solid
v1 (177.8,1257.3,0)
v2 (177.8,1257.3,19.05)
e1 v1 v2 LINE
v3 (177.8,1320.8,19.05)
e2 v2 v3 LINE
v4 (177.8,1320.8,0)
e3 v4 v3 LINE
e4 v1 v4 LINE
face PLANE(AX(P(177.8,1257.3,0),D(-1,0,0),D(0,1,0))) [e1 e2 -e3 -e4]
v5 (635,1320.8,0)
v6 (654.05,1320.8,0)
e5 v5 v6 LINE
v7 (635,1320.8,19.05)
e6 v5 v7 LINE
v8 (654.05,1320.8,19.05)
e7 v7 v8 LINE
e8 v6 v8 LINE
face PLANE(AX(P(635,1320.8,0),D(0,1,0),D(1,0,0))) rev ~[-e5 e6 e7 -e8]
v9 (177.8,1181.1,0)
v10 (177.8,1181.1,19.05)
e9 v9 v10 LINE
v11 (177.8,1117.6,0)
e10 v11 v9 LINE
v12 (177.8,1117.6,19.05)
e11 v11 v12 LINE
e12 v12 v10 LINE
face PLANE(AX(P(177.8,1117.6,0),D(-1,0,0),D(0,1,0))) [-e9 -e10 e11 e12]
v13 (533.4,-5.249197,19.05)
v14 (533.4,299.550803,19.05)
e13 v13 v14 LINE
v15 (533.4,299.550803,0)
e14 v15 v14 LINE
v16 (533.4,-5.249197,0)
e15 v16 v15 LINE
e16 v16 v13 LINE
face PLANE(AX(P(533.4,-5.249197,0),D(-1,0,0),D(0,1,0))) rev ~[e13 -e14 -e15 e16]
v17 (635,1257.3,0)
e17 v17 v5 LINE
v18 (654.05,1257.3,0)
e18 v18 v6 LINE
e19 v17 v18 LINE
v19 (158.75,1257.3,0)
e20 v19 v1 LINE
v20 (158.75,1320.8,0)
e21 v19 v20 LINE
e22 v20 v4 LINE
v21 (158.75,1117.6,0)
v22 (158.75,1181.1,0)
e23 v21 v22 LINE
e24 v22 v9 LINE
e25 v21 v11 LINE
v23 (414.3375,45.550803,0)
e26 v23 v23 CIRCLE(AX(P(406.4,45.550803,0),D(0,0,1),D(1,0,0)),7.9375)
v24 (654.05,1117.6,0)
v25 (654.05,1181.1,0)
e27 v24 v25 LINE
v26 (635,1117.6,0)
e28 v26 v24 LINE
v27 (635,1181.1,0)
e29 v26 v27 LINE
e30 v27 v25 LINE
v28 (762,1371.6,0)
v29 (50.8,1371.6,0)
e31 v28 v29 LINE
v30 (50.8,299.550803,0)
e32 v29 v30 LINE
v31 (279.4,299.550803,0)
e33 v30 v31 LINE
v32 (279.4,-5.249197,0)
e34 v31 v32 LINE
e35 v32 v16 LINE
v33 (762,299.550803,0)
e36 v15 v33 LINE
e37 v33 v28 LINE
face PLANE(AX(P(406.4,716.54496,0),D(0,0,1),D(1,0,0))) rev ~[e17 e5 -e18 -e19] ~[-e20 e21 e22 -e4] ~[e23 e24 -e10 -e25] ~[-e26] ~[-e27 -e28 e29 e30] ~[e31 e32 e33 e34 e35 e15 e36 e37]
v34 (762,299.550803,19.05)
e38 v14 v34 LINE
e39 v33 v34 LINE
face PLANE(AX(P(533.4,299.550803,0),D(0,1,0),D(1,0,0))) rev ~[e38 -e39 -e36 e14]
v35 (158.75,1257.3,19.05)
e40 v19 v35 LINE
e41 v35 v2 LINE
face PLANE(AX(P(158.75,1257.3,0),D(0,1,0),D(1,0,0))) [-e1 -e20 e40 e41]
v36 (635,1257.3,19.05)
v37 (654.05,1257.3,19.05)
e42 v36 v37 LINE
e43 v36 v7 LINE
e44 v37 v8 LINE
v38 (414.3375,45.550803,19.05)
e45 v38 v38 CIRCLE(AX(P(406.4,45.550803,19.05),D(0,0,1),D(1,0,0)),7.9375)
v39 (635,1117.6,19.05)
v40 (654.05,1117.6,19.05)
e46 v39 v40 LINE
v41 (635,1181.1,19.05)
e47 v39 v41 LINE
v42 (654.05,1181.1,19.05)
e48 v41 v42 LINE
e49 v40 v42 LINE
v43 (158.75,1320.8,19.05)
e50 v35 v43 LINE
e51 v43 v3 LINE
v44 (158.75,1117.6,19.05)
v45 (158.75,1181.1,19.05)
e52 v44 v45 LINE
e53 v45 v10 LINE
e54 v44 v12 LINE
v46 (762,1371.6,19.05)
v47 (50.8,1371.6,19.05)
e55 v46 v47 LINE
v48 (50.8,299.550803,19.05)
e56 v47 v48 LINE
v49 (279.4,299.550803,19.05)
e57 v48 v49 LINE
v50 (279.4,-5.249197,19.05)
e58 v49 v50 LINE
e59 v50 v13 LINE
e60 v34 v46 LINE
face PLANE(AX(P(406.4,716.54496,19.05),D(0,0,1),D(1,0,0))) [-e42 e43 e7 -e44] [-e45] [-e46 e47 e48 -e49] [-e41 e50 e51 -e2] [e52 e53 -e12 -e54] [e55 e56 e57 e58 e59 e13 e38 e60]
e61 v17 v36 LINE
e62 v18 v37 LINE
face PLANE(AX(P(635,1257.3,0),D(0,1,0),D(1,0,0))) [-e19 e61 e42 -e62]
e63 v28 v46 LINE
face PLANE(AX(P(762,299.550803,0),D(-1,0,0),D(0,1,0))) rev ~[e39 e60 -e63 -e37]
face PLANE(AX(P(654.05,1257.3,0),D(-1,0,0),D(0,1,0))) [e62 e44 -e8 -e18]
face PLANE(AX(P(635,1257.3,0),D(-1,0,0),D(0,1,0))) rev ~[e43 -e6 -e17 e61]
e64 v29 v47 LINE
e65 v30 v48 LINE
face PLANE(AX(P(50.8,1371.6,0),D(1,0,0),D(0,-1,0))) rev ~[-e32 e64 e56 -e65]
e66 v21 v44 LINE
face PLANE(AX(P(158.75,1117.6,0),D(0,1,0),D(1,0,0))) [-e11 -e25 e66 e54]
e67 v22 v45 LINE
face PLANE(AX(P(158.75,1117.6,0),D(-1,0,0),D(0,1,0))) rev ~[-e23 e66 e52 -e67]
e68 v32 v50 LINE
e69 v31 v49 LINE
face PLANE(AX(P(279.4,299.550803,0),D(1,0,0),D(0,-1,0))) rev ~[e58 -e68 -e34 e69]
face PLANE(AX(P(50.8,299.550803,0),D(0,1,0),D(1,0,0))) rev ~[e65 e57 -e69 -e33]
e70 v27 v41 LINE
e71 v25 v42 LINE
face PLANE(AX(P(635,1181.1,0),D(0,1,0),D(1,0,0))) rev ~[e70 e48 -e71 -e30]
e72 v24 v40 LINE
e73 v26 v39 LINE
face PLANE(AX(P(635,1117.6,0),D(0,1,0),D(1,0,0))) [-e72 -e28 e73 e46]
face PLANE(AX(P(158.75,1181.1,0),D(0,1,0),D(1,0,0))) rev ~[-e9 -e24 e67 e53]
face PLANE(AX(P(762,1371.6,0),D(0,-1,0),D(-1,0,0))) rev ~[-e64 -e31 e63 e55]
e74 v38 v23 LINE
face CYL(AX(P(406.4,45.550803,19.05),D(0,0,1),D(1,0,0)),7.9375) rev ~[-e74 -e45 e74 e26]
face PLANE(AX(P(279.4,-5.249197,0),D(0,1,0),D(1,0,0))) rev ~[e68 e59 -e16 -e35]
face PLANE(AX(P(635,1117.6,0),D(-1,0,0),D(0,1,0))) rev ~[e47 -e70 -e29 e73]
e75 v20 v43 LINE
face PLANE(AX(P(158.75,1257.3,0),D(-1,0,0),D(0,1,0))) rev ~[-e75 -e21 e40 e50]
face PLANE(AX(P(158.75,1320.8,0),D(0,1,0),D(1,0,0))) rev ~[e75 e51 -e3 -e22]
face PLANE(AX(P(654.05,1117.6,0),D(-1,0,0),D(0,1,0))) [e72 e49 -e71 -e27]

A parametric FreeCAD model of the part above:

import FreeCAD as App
import Part
import Sketcher

V = App.Vector
Q = App.Units.Quantity


def add_polygon(sketch, points):
    """Adds a closed chain of lines whose ends are joined by coincident constraints."""
    first, n = sketch.GeometryCount, len(points)
    for a, b in zip(points, points[1:] + points[:1]):
        sketch.addGeometry(Part.LineSegment(App.Vector(*a, 0), App.Vector(*b, 0)), False)
    for i in range(n):
        sketch.addConstraint(Sketcher.Constraint("Coincident", first + i, 2, first + (i + 1) % n, 1))

doc = App.newDocument("Part")
body = doc.addObject("PartDesign::Body", "Body")

sketch1 = doc.addObject("Sketcher::SketchObject", "Sketch")
body.addObject(sketch1)
sketch1.AttachmentSupport = (doc.XY_Plane, [""])
sketch1.MapMode = "FlatFace"
add_polygon(sketch1, [(762, 1372), (51, 1372), (51, 300), (279, 300), (279, -5), (533, -5), (533, 300), (762, 300)])
add_polygon(sketch1, [(178, 1118), (159, 1118), (159, 1181), (178, 1181)])
add_polygon(sketch1, [(654, 1118), (635, 1118), (635, 1181), (654, 1181)])
add_polygon(sketch1, [(178, 1257), (159, 1257), (159, 1321), (178, 1321)])
add_polygon(sketch1, [(654, 1257), (635, 1257), (635, 1321), (654, 1321)])
sketch1.addConstraint([
    Sketcher.Constraint("Horizontal", 0),
    Sketcher.Constraint("Vertical", 1),
    Sketcher.Constraint("Horizontal", 2),
    Sketcher.Constraint("Vertical", 3),
    Sketcher.Constraint("Horizontal", 4),
    Sketcher.Constraint("Vertical", 5),
    Sketcher.Constraint("Horizontal", 6),
    Sketcher.Constraint("Vertical", 7),
    Sketcher.Constraint("Horizontal", 8),
    Sketcher.Constraint("Vertical", 9),
    Sketcher.Constraint("Horizontal", 10),
    Sketcher.Constraint("Vertical", 11),
    Sketcher.Constraint("Horizontal", 12),
    Sketcher.Constraint("Vertical", 13),
    Sketcher.Constraint("Horizontal", 14),
    Sketcher.Constraint("Vertical", 15),
    Sketcher.Constraint("Horizontal", 16),
    Sketcher.Constraint("Vertical", 17),
    Sketcher.Constraint("Horizontal", 18),
    Sketcher.Constraint("Vertical", 19),
    Sketcher.Constraint("Horizontal", 20),
    Sketcher.Constraint("Vertical", 21),
    Sketcher.Constraint("Horizontal", 22),
    Sketcher.Constraint("Vertical", 23),
    Sketcher.Constraint("Horizontal", 2, 2, 5, 2),
    Sketcher.Constraint("Horizontal", 11, 2, 12, 2),
    Sketcher.Constraint("Horizontal", 10, 2, 13, 2),
    Sketcher.Constraint("Horizontal", 19, 2, 20, 2),
    Sketcher.Constraint("Horizontal", 18, 2, 21, 2),
    Sketcher.Constraint("Vertical", 9, 2, 16, 2),
    Sketcher.Constraint("Vertical", 11, 2, 18, 2),
    Sketcher.Constraint("Vertical", 13, 2, 20, 2),
    Sketcher.Constraint("Vertical", 15, 2, 22, 2),
    Sketcher.Constraint("Equal", 2, 6),
    Sketcher.Constraint("Equal", 10, 12),
    Sketcher.Constraint("Equal", 15, 17),
    Sketcher.Constraint("DistanceX", 0, 2, 0, 1, Q("28 in")),
    Sketcher.Constraint("DistanceX", 2, 1, 2, 2, Q("9 in")),
    Sketcher.Constraint("DistanceY", 3, 2, 3, 1, Q("12 in")),
    Sketcher.Constraint("DistanceY", 9, 1, 9, 2, Q("2.5 in")),
    Sketcher.Constraint("DistanceX", -1, 1, 0, 2, Q("2 in")),
    Sketcher.Constraint("DistanceY", -1, 1, 0, 2, Q("54 in")),
    Sketcher.Constraint("DistanceY", -1, 1, 8, 2, Q("44 in")),
    Sketcher.Constraint("DistanceX", -1, 1, 10, 2, Q("7 in")),
    Sketcher.Constraint("DistanceX", -1, 1, 12, 2, Q("25 in")),
    Sketcher.Constraint("DistanceY", -1, 1, 17, 2, Q("52 in")),
    Sketcher.Constraint("DistanceX", 8, 2, 8, 1, Q("0.75 in")),
    Sketcher.Constraint("DistanceY", 1, 2, 1, 1, Q("1072.049197 mm")),
])
pad1 = doc.addObject("PartDesign::Pad", "Pad")
body.addObject(pad1)
pad1.Profile = sketch1
pad1.Length = Q("0.75 in")

sketch2 = doc.addObject("Sketcher::SketchObject", "Sketch001")
body.addObject(sketch2)
sketch2.AttachmentSupport = (doc.XY_Plane, [""])
sketch2.MapMode = "FlatFace"
sketch2.AttachmentOffset = App.Placement(V(0, 0, 0.75 * 25.4), App.Rotation())
sketch2.addGeometry(Part.Circle(V(406, 46, 0), V(0, 0, 1), 8), False)
sketch2.addConstraint([
    Sketcher.Constraint("Diameter", 0, Q("0.625 in")),
    Sketcher.Constraint("DistanceX", -1, 1, 0, 3, Q("16 in")),
    Sketcher.Constraint("DistanceY", -1, 1, 0, 3, Q("45.550803 mm")),
])
pocket1 = doc.addObject("PartDesign::Pocket", "Pocket")
body.addObject(pocket1)
pocket1.Profile = sketch2
pocket1.Type = "ThroughAll"

doc.recompute()
